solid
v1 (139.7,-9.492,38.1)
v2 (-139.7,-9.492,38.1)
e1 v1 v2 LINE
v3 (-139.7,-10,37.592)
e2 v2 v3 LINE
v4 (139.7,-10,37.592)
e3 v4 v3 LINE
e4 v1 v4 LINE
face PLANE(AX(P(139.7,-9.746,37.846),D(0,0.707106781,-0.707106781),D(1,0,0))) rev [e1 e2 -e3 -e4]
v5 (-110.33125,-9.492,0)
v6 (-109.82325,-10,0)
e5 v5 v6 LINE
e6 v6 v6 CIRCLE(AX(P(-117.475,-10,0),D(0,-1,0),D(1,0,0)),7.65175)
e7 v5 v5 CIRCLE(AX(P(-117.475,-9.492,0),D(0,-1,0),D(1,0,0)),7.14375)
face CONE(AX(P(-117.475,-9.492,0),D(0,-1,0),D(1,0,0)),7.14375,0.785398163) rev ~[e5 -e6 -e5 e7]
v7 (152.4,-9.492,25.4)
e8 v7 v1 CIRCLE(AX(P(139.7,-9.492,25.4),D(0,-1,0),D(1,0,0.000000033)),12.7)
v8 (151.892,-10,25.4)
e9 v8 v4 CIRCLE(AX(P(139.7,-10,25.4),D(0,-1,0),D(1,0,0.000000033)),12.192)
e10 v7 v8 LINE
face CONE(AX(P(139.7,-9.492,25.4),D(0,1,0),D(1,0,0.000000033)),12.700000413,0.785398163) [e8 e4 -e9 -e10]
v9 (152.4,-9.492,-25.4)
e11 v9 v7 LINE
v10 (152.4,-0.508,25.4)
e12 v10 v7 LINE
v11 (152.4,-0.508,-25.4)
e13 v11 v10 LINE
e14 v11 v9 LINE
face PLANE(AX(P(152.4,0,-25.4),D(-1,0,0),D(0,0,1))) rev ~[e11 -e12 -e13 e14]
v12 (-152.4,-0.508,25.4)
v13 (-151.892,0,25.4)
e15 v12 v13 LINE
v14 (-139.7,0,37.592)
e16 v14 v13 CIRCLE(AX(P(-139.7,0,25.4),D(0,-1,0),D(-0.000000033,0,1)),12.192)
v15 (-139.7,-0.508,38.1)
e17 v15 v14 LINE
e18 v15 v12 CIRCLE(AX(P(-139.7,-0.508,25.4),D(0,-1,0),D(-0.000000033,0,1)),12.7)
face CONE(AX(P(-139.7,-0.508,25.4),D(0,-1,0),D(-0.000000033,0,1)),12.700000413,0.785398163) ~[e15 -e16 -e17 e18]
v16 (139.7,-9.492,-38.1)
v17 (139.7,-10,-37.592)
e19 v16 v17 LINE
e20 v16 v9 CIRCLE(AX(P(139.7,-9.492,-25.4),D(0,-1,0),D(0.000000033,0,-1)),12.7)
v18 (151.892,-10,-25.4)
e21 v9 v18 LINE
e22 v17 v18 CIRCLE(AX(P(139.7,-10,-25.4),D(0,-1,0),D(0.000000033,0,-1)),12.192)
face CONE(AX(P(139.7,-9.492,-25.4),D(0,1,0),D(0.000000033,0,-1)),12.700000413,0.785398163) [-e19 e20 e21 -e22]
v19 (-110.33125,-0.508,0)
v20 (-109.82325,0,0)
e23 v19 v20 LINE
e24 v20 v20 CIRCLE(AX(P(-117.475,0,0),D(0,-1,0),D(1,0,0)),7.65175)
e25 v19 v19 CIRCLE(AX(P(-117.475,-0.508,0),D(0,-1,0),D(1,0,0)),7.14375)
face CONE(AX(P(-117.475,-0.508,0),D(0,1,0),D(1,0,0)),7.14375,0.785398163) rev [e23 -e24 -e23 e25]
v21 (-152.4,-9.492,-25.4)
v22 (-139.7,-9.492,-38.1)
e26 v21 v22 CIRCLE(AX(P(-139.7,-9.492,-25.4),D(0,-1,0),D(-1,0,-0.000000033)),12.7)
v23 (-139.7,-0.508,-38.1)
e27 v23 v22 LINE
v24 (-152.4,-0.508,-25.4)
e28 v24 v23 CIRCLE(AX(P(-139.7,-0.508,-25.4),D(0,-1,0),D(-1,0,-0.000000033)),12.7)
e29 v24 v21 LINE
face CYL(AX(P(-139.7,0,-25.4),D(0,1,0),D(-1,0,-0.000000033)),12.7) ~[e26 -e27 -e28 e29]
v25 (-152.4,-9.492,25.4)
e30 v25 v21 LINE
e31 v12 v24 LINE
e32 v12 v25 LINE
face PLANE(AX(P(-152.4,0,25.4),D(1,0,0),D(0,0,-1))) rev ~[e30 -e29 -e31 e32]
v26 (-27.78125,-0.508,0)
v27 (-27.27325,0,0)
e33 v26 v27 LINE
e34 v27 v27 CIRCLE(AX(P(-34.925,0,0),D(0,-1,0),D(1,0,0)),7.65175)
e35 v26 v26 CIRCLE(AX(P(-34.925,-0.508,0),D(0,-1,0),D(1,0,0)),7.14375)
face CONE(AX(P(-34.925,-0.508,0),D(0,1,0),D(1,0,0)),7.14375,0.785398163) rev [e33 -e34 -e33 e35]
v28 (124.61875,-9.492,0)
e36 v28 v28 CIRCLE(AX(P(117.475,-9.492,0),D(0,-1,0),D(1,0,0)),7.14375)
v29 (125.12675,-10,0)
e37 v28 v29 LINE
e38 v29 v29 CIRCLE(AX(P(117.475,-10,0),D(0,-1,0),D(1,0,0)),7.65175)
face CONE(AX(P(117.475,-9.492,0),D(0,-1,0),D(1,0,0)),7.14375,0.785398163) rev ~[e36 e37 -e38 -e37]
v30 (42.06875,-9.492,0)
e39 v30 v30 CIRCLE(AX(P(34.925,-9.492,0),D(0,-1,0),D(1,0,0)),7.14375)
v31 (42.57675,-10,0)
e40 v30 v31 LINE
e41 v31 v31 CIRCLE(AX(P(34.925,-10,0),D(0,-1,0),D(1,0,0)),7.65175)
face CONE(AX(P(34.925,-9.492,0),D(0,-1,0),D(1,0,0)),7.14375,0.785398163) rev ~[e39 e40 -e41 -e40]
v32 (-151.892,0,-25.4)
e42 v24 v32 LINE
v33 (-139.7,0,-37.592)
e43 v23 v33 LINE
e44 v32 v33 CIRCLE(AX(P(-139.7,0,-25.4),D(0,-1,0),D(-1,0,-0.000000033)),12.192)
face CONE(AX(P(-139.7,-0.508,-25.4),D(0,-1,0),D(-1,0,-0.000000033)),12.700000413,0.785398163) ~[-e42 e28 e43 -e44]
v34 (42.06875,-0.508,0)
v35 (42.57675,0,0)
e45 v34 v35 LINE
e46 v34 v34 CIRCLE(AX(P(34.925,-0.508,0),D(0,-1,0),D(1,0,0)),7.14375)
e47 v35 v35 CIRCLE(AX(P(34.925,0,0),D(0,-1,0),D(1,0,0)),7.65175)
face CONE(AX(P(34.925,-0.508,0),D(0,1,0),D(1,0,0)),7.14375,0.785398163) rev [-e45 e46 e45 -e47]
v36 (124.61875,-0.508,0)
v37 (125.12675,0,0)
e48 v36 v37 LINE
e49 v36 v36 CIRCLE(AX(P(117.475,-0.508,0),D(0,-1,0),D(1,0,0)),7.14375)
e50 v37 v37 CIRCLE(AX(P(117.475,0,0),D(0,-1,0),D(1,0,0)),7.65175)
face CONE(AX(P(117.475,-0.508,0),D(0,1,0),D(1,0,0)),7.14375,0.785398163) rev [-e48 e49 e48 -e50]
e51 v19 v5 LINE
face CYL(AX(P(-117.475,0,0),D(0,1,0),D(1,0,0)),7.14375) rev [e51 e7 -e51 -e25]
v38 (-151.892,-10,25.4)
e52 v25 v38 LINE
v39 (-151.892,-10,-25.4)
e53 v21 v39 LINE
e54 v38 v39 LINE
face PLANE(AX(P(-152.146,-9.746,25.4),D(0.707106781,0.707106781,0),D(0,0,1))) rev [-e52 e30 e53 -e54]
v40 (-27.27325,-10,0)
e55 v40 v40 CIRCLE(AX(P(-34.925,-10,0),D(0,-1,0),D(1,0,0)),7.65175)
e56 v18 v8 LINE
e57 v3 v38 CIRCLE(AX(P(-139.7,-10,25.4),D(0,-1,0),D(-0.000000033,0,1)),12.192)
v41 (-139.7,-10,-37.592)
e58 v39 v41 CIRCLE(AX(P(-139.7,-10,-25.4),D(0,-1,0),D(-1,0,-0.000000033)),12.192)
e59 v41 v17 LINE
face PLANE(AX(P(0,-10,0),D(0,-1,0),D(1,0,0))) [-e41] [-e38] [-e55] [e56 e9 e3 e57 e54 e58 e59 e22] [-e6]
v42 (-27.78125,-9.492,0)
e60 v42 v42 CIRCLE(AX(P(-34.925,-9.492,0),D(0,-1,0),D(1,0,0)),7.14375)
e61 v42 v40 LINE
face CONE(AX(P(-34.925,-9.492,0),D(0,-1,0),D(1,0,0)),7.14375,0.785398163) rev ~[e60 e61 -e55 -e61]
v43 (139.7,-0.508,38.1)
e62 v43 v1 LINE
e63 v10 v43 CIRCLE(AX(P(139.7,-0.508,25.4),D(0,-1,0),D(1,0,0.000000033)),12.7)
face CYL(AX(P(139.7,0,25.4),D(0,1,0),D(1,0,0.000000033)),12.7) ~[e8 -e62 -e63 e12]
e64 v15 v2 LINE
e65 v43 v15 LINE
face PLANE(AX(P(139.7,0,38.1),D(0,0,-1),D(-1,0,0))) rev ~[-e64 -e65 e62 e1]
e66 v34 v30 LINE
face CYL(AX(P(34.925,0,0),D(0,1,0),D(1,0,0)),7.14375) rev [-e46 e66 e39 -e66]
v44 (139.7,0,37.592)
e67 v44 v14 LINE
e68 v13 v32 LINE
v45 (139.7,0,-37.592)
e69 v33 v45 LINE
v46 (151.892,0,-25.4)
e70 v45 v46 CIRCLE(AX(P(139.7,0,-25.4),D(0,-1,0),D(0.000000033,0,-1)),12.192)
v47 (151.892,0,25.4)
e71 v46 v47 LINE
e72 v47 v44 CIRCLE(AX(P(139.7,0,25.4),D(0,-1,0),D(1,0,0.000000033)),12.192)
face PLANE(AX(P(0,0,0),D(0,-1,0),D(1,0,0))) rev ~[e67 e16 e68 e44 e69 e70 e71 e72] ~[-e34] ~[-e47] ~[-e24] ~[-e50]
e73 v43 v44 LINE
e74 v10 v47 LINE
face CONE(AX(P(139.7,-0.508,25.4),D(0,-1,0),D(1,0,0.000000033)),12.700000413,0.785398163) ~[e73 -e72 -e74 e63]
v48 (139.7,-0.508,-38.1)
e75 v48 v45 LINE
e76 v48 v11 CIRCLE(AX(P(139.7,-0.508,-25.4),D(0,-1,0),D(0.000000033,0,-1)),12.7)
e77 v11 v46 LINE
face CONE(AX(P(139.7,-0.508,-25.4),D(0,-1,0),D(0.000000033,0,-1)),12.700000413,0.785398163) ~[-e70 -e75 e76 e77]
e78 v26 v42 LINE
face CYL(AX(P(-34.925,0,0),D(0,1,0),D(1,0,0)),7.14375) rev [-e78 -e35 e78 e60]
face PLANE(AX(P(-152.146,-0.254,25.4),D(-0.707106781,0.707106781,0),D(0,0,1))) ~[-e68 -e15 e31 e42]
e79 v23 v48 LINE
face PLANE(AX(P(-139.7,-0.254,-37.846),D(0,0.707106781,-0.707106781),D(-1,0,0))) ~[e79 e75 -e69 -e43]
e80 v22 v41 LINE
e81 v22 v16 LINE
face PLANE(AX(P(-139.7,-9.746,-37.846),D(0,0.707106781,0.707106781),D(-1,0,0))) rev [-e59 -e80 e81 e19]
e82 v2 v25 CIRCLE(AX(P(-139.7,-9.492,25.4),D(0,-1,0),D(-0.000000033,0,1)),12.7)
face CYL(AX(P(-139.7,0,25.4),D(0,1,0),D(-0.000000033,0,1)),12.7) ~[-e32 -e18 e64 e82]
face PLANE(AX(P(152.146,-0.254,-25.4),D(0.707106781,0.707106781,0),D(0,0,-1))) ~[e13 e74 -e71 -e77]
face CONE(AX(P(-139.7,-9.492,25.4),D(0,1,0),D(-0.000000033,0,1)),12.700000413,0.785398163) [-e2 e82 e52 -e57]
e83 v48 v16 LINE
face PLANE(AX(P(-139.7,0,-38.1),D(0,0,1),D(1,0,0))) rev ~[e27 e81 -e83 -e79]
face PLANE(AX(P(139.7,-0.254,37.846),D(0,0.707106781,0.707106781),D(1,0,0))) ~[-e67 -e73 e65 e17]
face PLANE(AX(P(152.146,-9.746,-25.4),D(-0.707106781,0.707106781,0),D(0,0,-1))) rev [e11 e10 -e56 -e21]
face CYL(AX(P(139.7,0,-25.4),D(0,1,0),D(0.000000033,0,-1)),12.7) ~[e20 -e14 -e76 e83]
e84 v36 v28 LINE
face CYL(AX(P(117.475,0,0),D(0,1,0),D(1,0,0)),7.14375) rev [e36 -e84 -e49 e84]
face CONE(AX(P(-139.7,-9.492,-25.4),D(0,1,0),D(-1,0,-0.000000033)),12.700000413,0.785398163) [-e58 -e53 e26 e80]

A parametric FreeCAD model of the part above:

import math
import FreeCAD as App
import Part
import Sketcher

V = App.Vector
Q = App.Units.Quantity


def edges_at(feature, points):
    """Names of the edges that pass closest to the given points."""
    edges = feature.Shape.Edges
    near = lambda p: min(range(len(edges)), key=lambda i: edges[i].distToShape(Part.Vertex(*p))[0])
    return sorted({f"Edge{near(p) + 1}" for p in points})

doc = App.newDocument("Part")
params = doc.addObject("Spreadsheet::Sheet", "Params")
for row, (alias, value) in enumerate([
    ("sketch1_radius", "0.5 in"),
    ("sketch1_width", "11 in"),
    ("sketch1_height", "2 in"),
    ("sketch1_diameter", "0.5625 in"),
    ("pad1_length", "10 mm"),
    ("chamfer_size", "0.02 in"),
], start=1):
    params.set(f"A{row}", alias)
    params.set(f"B{row}", "=" + value)
    params.setAlias(f"B{row}", alias)

body = doc.addObject("PartDesign::Body", "Body")

sketch1 = body.newObject("Sketcher::SketchObject", "Sketch")
sketch1.AttachmentSupport = (doc.getObject("XZ_Plane"), [""])
sketch1.MapMode = "FlatFace"
sketch1.addGeometry([
    Part.LineSegment(V(-152, 25, 0), V(-152, -25, 0)),
    Part.ArcOfCircle(Part.Circle(V(-140, -25, 0), V(0, 0, 1), 13), math.radians(-180), math.radians(-90)),
    Part.LineSegment(V(-140, -38, 0), V(140, -38, 0)),
    Part.ArcOfCircle(Part.Circle(V(140, -25, 0), V(0, 0, 1), 13), math.radians(-90), math.radians(0)),
    Part.LineSegment(V(152, -25, 0), V(152, 25, 0)),
    Part.ArcOfCircle(Part.Circle(V(140, 25, 0), V(0, 0, 1), 13), math.radians(0), math.radians(90)),
    Part.LineSegment(V(140, 38, 0), V(-140, 38, 0)),
    Part.ArcOfCircle(Part.Circle(V(-140, 25, 0), V(0, 0, 1), 13), math.radians(90), math.radians(180)),
    Part.Circle(V(-117, 0, 0), V(0, 0, 1), 7),
    Part.Circle(V(-35, 0, 0), V(0, 0, 1), 7),
    Part.Circle(V(35, 0, 0), V(0, 0, 1), 7),
    Part.Circle(V(117, 0, 0), V(0, 0, 1), 7),
], False)
sketch1.addConstraint([
    Sketcher.Constraint("Tangent", 0, 2, 1, 1),
    Sketcher.Constraint("Tangent", 1, 2, 2, 1),
    Sketcher.Constraint("Tangent", 2, 2, 3, 1),
    Sketcher.Constraint("Tangent", 3, 2, 4, 1),
    Sketcher.Constraint("Tangent", 4, 2, 5, 1),
    Sketcher.Constraint("Tangent", 5, 2, 6, 1),
    Sketcher.Constraint("Tangent", 6, 2, 7, 1),
    Sketcher.Constraint("Tangent", 7, 2, 0, 1),
    Sketcher.Constraint("Vertical", 0),
    Sketcher.Constraint("Horizontal", 2),
    Sketcher.Constraint("Vertical", 4),
    Sketcher.Constraint("Horizontal", 6),
    Sketcher.Constraint("Equal", 1, 3),
    Sketcher.Constraint("Equal", 3, 5),
    Sketcher.Constraint("Equal", 5, 7),
    Sketcher.Constraint("Equal", 8, 9),
    Sketcher.Constraint("Equal", 9, 10),
    Sketcher.Constraint("Equal", 10, 11),
    Sketcher.Constraint("Symmetric", 1, 3, 5, 3, -1, 1),
    Sketcher.Constraint("Symmetric", 9, 3, 10, 3, -1, 1),
    Sketcher.Constraint("Symmetric", 8, 3, 11, 3, -1, 1),
    Sketcher.Constraint("PointOnObject", 8, 3, -1),
    Sketcher.Constraint("PointOnObject", 9, 3, -1),
    Sketcher.Constraint("Radius", 1, Q("0.5 in")),
    Sketcher.Constraint("DistanceX", 2, 1, 2, 2, Q("11 in")),
    Sketcher.Constraint("DistanceY", 0, 2, 0, 1, Q("2 in")),
    Sketcher.Constraint("Diameter", 8, Q("0.5625 in")),
    Sketcher.Constraint("DistanceX", 8, 3, 10, 3, Q("6 in")),
    Sketcher.Constraint("DistanceX", 8, 3, 9, 3, Q("3.25 in")),
])
sketch1.setExpression("Constraints[23]", "Params.sketch1_radius")
sketch1.setExpression("Constraints[24]", "Params.sketch1_width")
sketch1.setExpression("Constraints[25]", "Params.sketch1_height")
sketch1.setExpression("Constraints[26]", "Params.sketch1_diameter")
pad1 = body.newObject("PartDesign::Pad", "Pad")
pad1.Profile = sketch1
pad1.setExpression("Length", "Params.pad1_length")
doc.recompute()

chamfer = body.newObject("PartDesign::Chamfer", "Chamfer")
chamfer.Base = (pad1, edges_at(pad1, [
    (-148.68, -10, 34.38),
    (-152.4, -10, 0),
    (-148.68, -10, -34.38),
    (0, -10, -38.1),
    (148.68, -10, -34.38),
    (152.4, -10, 0),
    (148.68, -10, 34.38),
    (0, -10, 38.1),
    (-124.619, -10, 0),
    (-42.069, -10, 0),
    (27.781, -10, 0),
    (110.331, -10, 0),
    (-148.68, 0, 34.38),
    (-152.4, 0, 0),
    (-148.68, 0, -34.38),
    (0, 0, -38.1),
    (148.68, 0, -34.38),
    (152.4, 0, 0),
    (148.68, 0, 34.38),
    (0, 0, 38.1),
    (-124.619, 0, 0),
    (-42.069, 0, 0),
    (27.781, 0, 0),
    (110.331, 0, 0),
]))
chamfer.setExpression("Size", "Params.chamfer_size")

doc.recompute()
